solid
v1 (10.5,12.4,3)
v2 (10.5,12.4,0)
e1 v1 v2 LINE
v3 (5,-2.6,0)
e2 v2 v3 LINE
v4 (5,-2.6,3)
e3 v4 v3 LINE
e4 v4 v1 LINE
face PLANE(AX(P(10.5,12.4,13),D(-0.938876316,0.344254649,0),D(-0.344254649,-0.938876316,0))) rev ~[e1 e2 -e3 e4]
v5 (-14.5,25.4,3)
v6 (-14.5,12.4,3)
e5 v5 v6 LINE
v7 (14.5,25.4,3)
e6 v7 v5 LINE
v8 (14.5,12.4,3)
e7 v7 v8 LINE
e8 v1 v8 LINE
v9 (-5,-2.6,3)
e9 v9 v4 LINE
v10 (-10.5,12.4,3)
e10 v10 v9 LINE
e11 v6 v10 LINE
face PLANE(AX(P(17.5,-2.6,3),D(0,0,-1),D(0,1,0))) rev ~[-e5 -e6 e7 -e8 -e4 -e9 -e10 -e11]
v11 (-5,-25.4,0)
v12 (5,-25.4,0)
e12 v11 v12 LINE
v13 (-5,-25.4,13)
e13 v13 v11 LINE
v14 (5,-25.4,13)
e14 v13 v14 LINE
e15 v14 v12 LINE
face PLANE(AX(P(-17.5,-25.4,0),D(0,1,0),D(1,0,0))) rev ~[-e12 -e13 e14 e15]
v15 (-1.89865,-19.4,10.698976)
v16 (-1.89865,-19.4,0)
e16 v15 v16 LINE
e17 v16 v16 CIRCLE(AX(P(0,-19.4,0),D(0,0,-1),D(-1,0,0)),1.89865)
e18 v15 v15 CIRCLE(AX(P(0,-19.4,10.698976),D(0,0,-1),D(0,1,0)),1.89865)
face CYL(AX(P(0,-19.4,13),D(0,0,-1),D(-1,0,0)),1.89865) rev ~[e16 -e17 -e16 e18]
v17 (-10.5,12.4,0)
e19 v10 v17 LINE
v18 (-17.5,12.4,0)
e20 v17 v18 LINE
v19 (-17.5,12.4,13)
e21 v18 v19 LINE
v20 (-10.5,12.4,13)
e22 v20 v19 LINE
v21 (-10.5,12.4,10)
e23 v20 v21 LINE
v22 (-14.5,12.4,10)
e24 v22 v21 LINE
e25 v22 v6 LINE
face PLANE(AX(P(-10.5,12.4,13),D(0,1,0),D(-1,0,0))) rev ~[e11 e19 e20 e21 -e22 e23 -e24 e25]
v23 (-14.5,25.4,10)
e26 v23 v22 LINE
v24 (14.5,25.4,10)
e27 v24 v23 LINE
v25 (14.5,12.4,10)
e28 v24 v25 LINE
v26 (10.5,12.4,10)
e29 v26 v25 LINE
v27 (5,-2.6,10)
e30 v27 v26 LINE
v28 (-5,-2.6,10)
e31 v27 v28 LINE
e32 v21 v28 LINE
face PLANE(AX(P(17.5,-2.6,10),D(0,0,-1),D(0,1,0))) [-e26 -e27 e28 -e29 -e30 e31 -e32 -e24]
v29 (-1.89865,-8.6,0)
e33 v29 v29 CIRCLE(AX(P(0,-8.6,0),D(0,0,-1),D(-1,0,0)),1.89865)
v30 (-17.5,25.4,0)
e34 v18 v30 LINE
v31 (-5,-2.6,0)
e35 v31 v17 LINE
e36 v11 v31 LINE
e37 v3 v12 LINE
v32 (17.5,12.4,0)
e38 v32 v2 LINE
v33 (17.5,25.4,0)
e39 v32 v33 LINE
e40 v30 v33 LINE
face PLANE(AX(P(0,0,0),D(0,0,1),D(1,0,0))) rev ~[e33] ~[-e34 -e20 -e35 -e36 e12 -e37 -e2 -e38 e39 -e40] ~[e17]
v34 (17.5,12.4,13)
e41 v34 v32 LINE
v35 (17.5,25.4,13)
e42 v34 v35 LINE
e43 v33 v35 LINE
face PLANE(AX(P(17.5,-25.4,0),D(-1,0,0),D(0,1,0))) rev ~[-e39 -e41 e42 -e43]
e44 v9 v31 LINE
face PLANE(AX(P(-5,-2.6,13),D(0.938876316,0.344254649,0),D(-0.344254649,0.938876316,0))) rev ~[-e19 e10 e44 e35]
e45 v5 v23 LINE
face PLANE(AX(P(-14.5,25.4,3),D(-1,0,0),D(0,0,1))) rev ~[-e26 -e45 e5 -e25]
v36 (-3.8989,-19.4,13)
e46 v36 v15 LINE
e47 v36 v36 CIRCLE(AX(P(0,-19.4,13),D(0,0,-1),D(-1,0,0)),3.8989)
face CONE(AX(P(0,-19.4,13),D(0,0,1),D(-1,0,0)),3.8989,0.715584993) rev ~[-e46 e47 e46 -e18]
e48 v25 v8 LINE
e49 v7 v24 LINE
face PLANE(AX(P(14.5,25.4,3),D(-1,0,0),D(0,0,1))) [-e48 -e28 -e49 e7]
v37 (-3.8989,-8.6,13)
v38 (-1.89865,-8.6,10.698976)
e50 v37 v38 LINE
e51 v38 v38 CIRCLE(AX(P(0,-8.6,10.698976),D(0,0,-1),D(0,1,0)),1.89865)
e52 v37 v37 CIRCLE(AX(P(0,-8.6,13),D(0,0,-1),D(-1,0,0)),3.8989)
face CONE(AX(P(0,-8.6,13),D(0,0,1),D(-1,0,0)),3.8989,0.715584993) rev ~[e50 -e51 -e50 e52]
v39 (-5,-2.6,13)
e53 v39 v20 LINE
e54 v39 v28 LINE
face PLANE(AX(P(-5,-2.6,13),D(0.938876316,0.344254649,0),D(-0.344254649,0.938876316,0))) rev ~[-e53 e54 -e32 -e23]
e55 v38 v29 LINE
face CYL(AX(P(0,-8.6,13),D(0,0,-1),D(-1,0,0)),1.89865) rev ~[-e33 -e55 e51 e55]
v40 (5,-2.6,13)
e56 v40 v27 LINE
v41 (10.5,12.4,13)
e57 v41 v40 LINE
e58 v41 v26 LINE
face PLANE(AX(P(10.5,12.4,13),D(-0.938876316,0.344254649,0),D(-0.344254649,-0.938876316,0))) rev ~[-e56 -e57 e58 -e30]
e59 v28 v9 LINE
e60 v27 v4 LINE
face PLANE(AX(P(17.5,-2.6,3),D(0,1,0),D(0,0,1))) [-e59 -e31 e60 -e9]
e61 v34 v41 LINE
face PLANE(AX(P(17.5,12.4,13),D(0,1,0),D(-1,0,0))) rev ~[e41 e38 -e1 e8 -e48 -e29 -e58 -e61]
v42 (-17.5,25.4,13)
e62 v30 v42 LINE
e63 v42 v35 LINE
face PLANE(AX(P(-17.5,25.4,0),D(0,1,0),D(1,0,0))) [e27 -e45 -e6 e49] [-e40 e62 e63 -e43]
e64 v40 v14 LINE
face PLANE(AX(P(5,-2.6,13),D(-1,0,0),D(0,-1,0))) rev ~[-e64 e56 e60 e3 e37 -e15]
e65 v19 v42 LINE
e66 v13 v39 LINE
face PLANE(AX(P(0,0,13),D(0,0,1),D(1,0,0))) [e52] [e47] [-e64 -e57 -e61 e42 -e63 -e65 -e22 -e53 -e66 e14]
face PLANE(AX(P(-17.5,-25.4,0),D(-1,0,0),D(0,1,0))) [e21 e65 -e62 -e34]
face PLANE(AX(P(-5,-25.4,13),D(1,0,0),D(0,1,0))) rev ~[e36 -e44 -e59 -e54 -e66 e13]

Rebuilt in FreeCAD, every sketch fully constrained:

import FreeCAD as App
import Part
import Sketcher

V = App.Vector
Q = App.Units.Quantity


def add_polygon(sketch, points):
    """Adds a closed chain of lines whose ends are joined by coincident constraints."""
    first, n = sketch.GeometryCount, len(points)
    for a, b in zip(points, points[1:] + points[:1]):
        sketch.addGeometry(Part.LineSegment(App.Vector(*a, 0), App.Vector(*b, 0)), False)
    for i in range(n):
        sketch.addConstraint(Sketcher.Constraint("Coincident", first + i, 2, first + (i + 1) % n, 1))

doc = App.newDocument("Part")
body = doc.addObject("PartDesign::Body", "Body")

# Sketch on XY plane
sketch1 = body.newObject("Sketcher::SketchObject", "Sketch")
sketch1.AttachmentSupport = (doc.getObject("XY_Plane"), [""])
sketch1.MapMode = "FlatFace"
add_polygon(sketch1, [(-17.5, 25.4), (-17.5, -25.4), (17.5, -25.4), (17.5, 25.4)])  # lines 0-3
sketch1.addConstraint([
    Sketcher.Constraint("Vertical", 0),
    Sketcher.Constraint("Horizontal", 1),
    Sketcher.Constraint("Vertical", 2),
    Sketcher.Constraint("Horizontal", 3),
    Sketcher.Constraint("Symmetric", 0, 2, 2, 2, -1, 1),
    Sketcher.Constraint("DistanceX", 1, 1, 1, 2, Q("35 mm")),
    Sketcher.Constraint("DistanceY", 0, 2, 0, 1, Q("50.8 mm")),
])
pad1 = body.newObject("PartDesign::Pad", "Pad")
pad1.Profile = sketch1
pad1.Length = 13

# Sketch on XZ plane
sketch2 = body.newObject("Sketcher::SketchObject", "Sketch001")
sketch2.AttachmentSupport = (doc.getObject("XZ_Plane"), [""])
sketch2.MapMode = "FlatFace"
sketch2.AttachmentOffset = App.Placement(V(0, 0, -25.4), App.Rotation())
add_polygon(sketch2, [(14.5, 10), (14.5, 3), (-14.5, 3), (-14.5, 10)])  # lines 0-3
sketch2.addConstraint([
    Sketcher.Constraint("Vertical", 0),
    Sketcher.Constraint("Horizontal", 1),
    Sketcher.Constraint("Vertical", 2),
    Sketcher.Constraint("Horizontal", 3),
    Sketcher.Constraint("DistanceX", 1, 2, 1, 1, Q("29 mm")),
    Sketcher.Constraint("DistanceY", 0, 2, 0, 1, Q("7 mm")),
    Sketcher.Constraint("DistanceY", -1, 1, 0, 2, Q("3 mm")),
    Sketcher.Constraint("DistanceX", -1, 1, 0, 2, Q("14.5 mm")),
])
pocket1 = body.newObject("PartDesign::Pocket", "Pocket")
pocket1.Profile = sketch2
pocket1.Length = 28
pocket1.Reversed = True

# Sketch on YZ plane
sketch3 = body.newObject("Sketcher::SketchObject", "Sketch002")
sketch3.AttachmentSupport = (doc.getObject("YZ_Plane"), [""])
sketch3.MapMode = "FlatFace"
sketch3.AttachmentOffset = App.Placement(V(0, 0, 17.5), App.Rotation())
add_polygon(sketch3, [(-2.6, 10), (-2.6, 3), (12.4, 3), (12.4, 10)])  # lines 0-3
sketch3.addConstraint([
    Sketcher.Constraint("Vertical", 0),
    Sketcher.Constraint("Horizontal", 1),
    Sketcher.Constraint("Vertical", 2),
    Sketcher.Constraint("Horizontal", 3),
    Sketcher.Constraint("DistanceX", 1, 1, 1, 2, Q("15 mm")),
    Sketcher.Constraint("DistanceY", 0, 2, 0, 1, Q("7 mm")),
    Sketcher.Constraint("DistanceY", -1, 1, 0, 2, Q("3 mm")),
    Sketcher.Constraint("DistanceX", 0, 2, -1, 1, Q("2.6 mm")),
])
pocket2 = body.newObject("PartDesign::Pocket", "Pocket001")
pocket2.Profile = sketch3
pocket2.Type = "ThroughAll"

# Sketch on XY plane
sketch4 = body.newObject("Sketcher::SketchObject", "Sketch003")
sketch4.AttachmentSupport = (doc.getObject("XY_Plane"), [""])
sketch4.MapMode = "FlatFace"
sketch4.AttachmentOffset = App.Placement(V(0, 0, 13), App.Rotation())
add_polygon(sketch4, [(-17.5, -25.4), (-5, -25.4), (-5, -2.6), (-10.5, 12.4), (-17.5, 12.4)])  # lines 0-4
add_polygon(sketch4, [(17.5, 12.4), (10.5, 12.4), (5, -2.6), (5, -25.4), (17.5, -25.4)])  # lines 5-9
sketch4.addConstraint([
    Sketcher.Constraint("Horizontal", 0),
    Sketcher.Constraint("Vertical", 1),
    Sketcher.Constraint("Horizontal", 3),
    Sketcher.Constraint("Vertical", 4),
    Sketcher.Constraint("Horizontal", 5),
    Sketcher.Constraint("Vertical", 7),
    Sketcher.Constraint("Horizontal", 8),
    Sketcher.Constraint("Vertical", 9),
    Sketcher.Constraint("Symmetric", 2, 2, 5, 2, -2),
    Sketcher.Constraint("Symmetric", 1, 2, 6, 2, -2),
    Sketcher.Constraint("Symmetric", 4, 2, 8, 2, -2),
    Sketcher.Constraint("DistanceX", 3, 2, 3, 1, Q("7 mm")),
    Sketcher.Constraint("DistanceX", 0, 1, 0, 2, Q("12.5 mm")),
    Sketcher.Constraint("DistanceY", 1, 1, 1, 2, Q("22.8 mm")),
    Sketcher.Constraint("DistanceY", 4, 2, 4, 1, Q("37.8 mm")),
    Sketcher.Constraint("DistanceX", 0, 2, -1, 1, Q("5 mm")),
    Sketcher.Constraint("DistanceY", 0, 2, -1, 1, Q("25.4 mm")),
])
pocket3 = body.newObject("PartDesign::Pocket", "Pocket002")
pocket3.Profile = sketch4
pocket3.Type = "ThroughAll"

# Sketch on XY plane
sketch5 = body.newObject("Sketcher::SketchObject", "Sketch004")
sketch5.AttachmentSupport = (doc.getObject("XY_Plane"), [""])
sketch5.MapMode = "FlatFace"
sketch5.AttachmentOffset = App.Placement(V(0, 0, 13), App.Rotation())
sketch5.addGeometry([
    Part.Circle(V(0, -8.6, 0), V(0, 0, 1), 1.89865),
    Part.Circle(V(0, -19.4, 0), V(0, 0, 1), 1.89865),
], False)
sketch5.addConstraint([
    Sketcher.Constraint("Equal", 0, 1),
    Sketcher.Constraint("PointOnObject", 0, 3, -2),
    Sketcher.Constraint("PointOnObject", 1, 3, -2),
    Sketcher.Constraint("Diameter", 0, Q("3.7973 mm")),
    Sketcher.Constraint("DistanceY", 0, 3, -1, 1, Q("8.6 mm")),
    Sketcher.Constraint("DistanceY", 1, 3, -1, 1, Q("19.4 mm")),
])
doc.recompute()
hole = body.newObject("PartDesign::Hole", "Hole")
hole.Profile = sketch5
hole.ThreadType = "None"
hole.Diameter = 3.7973
hole.DepthType = "ThroughAll"
hole.HoleCutType = "Countersink"
hole.HoleCutDiameter = 7.7978
hole.HoleCutCountersinkAngle = 82

doc.recompute()
